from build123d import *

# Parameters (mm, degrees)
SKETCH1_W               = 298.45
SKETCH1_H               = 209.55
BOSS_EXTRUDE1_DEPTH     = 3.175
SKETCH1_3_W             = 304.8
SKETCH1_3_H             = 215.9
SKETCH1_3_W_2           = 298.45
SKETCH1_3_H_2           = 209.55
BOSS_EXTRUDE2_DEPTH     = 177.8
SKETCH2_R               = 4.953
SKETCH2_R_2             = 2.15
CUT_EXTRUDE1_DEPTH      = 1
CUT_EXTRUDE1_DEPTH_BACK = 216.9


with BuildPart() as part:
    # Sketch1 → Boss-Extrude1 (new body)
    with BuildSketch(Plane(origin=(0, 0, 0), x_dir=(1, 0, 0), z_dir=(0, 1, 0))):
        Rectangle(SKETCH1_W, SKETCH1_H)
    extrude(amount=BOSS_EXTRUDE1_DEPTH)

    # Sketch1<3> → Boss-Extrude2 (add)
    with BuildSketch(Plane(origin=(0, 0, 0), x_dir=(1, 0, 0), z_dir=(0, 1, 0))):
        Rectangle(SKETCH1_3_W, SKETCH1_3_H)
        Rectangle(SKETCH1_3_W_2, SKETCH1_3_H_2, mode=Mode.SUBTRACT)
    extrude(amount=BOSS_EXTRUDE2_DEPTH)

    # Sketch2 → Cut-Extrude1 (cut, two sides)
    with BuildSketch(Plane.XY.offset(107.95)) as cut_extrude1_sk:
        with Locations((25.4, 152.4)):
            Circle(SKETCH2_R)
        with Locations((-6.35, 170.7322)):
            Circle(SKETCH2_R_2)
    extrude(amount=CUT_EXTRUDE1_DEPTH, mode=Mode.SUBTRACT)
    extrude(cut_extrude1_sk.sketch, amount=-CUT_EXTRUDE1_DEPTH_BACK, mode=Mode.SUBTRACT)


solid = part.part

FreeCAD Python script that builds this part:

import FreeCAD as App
import Part
import Sketcher
from FreeCAD import Vector
Q = App.Units.Quantity


def add_polygon(sketch, points):
    """Adds a closed chain of lines whose ends are joined by coincident constraints."""
    first, n = sketch.GeometryCount, len(points)
    for a, b in zip(points, points[1:] + points[:1]):
        sketch.addGeometry(Part.LineSegment(App.Vector(*a, 0), App.Vector(*b, 0)), False)
    for i in range(n):
        sketch.addConstraint(Sketcher.Constraint("Coincident", first + i, 2, first + (i + 1) % n, 1))

doc = App.newDocument("Part")
body = doc.addObject("PartDesign::Body", "Body")

# Sketch on XZ plane
sketch1 = doc.addObject("Sketcher::SketchObject", "Sketch")
body.addObject(sketch1)
sketch1.AttachmentSupport = (doc.XZ_Plane, [""])
sketch1.MapMode = "FlatFace"
add_polygon(sketch1, [(-149, -105), (-149, 105), (149, 105), (149, -105)])  # lines 0-3
sketch1.addConstraint(Sketcher.Constraint("Vertical", 0))
sketch1.addConstraint(Sketcher.Constraint("Horizontal", 1))
sketch1.addConstraint(Sketcher.Constraint("Vertical", 2))
sketch1.addConstraint(Sketcher.Constraint("Horizontal", 3))
sketch1.addConstraint(Sketcher.Constraint("Symmetric", 0, 2, 2, 2, -1, 1))
sketch1.addConstraint(Sketcher.Constraint("DistanceX", 1, 1, 1, 2, Q("11.75 in")))
sketch1.addConstraint(Sketcher.Constraint("DistanceY", 0, 1, 0, 2, Q("8.25 in")))
pad1 = doc.addObject("PartDesign::Pad", "Pad")
body.addObject(pad1)
pad1.Profile = sketch1
pad1.Length = Q("0.125 in")
pad1.Reversed = True

# Sketch on XZ plane
sketch2 = doc.addObject("Sketcher::SketchObject", "Sketch001")
body.addObject(sketch2)
sketch2.AttachmentSupport = (doc.XZ_Plane, [""])
sketch2.MapMode = "FlatFace"
add_polygon(sketch2, [(-152, -108), (-152, 108), (152, 108), (152, -108)])  # lines 0-3
add_polygon(sketch2, [(149, 105), (-149, 105), (-149, -105), (149, -105)])  # lines 4-7
sketch2.addConstraint(Sketcher.Constraint("Vertical", 0))
sketch2.addConstraint(Sketcher.Constraint("Horizontal", 1))
sketch2.addConstraint(Sketcher.Constraint("Vertical", 2))
sketch2.addConstraint(Sketcher.Constraint("Horizontal", 3))
sketch2.addConstraint(Sketcher.Constraint("Horizontal", 4))
sketch2.addConstraint(Sketcher.Constraint("Vertical", 5))
sketch2.addConstraint(Sketcher.Constraint("Horizontal", 6))
sketch2.addConstraint(Sketcher.Constraint("Vertical", 7))
sketch2.addConstraint(Sketcher.Constraint("Symmetric", 0, 2, 2, 2, -1, 1))
sketch2.addConstraint(Sketcher.Constraint("Symmetric", 4, 2, 6, 2, -1, 1))
sketch2.addConstraint(Sketcher.Constraint("DistanceX", 1, 1, 1, 2, Q("12 in")))
sketch2.addConstraint(Sketcher.Constraint("DistanceY", 0, 1, 0, 2, Q("8.5 in")))
sketch2.addConstraint(Sketcher.Constraint("DistanceX", 4, 2, 4, 1, Q("11.75 in")))
sketch2.addConstraint(Sketcher.Constraint("DistanceY", 5, 2, 5, 1, Q("8.25 in")))
pad2 = doc.addObject("PartDesign::Pad", "Pad001")
body.addObject(pad2)
pad2.Profile = sketch2
pad2.Length = Q("7 in")
pad2.Reversed = True

# Sketch on XY plane
sketch3 = doc.addObject("Sketcher::SketchObject", "Sketch002")
body.addObject(sketch3)
sketch3.AttachmentSupport = (doc.XY_Plane, [""])
sketch3.MapMode = "FlatFace"
sketch3.AttachmentOffset = App.Placement(Vector(0, 0, 4.25 * 25.4), App.Rotation())
sketch3.addGeometry(Part.Circle(Vector(25.4, 152.4, 0), Vector(0, 0, 1), 5), False)
sketch3.addGeometry(Part.Circle(Vector(-6.3, 170.7, 0), Vector(0, 0, 1), 2.1), False)
sketch3.addConstraint(Sketcher.Constraint("Diameter", 0, Q("0.39 in")))
sketch3.addConstraint(Sketcher.Constraint("DistanceX", -1, 1, 0, 3, Q("1 in")))
sketch3.addConstraint(Sketcher.Constraint("DistanceY", -1, 1, 0, 3, Q("6 in")))
sketch3.addConstraint(Sketcher.Constraint("Diameter", 1, 4.3))
sketch3.addConstraint(Sketcher.Constraint("DistanceX", 1, 3, -1, 1, Q("0.25 in")))
sketch3.addConstraint(Sketcher.Constraint("DistanceY", -1, 1, 1, 3, 170.7322))
pocket1 = doc.addObject("PartDesign::Pocket", "Pocket")
body.addObject(pocket1)
pocket1.Profile = sketch3
pocket1.Type = "ThroughAll"
pocket1.Midplane = True

doc.recompute()
